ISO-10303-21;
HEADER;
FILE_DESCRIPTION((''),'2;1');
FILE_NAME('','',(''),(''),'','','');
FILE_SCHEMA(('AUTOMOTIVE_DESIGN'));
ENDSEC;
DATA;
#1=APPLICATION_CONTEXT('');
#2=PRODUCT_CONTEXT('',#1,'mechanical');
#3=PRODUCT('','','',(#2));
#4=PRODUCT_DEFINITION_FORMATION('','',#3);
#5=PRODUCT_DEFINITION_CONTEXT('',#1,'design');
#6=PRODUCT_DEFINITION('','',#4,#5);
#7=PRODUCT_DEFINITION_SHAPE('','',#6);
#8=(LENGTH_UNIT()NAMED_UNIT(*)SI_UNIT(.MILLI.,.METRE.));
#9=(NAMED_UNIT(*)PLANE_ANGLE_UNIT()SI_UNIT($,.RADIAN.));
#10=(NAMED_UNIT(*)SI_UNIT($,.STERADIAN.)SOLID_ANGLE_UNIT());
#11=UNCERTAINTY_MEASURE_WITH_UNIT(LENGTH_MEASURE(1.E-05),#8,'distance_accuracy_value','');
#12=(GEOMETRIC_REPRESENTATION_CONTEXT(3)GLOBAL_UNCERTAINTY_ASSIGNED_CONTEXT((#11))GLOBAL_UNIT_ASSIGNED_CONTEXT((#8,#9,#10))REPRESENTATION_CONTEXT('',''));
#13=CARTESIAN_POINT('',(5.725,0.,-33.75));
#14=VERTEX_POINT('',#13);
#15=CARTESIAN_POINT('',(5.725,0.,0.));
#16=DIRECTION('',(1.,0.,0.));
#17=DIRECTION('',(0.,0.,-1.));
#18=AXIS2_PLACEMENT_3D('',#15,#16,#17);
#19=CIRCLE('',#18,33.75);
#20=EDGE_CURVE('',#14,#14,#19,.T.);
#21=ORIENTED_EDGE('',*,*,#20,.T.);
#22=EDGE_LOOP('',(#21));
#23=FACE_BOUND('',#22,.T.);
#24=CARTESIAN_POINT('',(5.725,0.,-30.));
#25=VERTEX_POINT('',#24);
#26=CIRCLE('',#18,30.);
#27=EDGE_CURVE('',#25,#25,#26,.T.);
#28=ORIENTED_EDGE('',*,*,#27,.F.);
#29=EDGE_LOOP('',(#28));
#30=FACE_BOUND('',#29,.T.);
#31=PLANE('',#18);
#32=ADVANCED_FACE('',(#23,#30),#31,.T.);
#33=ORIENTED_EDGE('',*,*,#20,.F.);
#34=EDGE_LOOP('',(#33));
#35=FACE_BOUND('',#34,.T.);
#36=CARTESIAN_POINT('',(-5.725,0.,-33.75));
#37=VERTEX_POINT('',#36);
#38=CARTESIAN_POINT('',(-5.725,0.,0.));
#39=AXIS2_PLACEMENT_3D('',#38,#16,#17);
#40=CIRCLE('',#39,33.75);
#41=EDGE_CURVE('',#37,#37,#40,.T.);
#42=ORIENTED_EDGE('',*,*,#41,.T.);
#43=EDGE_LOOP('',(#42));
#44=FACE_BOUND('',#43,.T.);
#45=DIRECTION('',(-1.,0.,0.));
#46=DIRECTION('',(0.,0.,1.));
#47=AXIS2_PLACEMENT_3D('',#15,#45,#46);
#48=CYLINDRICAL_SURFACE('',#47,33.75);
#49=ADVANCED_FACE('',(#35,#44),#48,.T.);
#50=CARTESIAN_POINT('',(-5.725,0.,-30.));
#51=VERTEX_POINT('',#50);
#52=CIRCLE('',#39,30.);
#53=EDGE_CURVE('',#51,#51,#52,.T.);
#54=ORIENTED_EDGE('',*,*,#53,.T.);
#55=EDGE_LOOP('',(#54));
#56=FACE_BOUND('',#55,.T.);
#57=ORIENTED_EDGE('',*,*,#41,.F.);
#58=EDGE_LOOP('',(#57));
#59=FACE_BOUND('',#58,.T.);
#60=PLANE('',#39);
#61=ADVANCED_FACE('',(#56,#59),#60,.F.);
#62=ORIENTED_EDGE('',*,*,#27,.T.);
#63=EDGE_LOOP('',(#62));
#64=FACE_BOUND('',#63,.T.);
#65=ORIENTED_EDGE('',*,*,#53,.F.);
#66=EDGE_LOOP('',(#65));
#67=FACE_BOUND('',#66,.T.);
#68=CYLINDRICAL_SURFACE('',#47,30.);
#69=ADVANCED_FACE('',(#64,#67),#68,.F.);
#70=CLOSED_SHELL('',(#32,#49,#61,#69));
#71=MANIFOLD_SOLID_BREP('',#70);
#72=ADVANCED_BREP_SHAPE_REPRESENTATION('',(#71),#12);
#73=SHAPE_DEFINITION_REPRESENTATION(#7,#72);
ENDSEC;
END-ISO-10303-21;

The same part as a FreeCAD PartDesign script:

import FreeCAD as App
import Part
import Sketcher

V = App.Vector

doc = App.newDocument("Part")
body = doc.addObject("PartDesign::Body", "Body")

# Sketch on YZ plane
sketch1 = body.newObject("Sketcher::SketchObject", "Sketch")
sketch1.AttachmentSupport = (doc.getObject("YZ_Plane"), [""])
sketch1.MapMode = "FlatFace"
sketch1.addGeometry([
    Part.Circle(V(0, 0, 0), V(0, 0, 1), 34),
    Part.Circle(V(0, 0, 0), V(0, 0, 1), 30),
], False)
sketch1.addConstraint([
    Sketcher.Constraint("Coincident", 0, 3, -1, 1),
    Sketcher.Constraint("Coincident", 1, 3, -1, 1),
    Sketcher.Constraint("Diameter", 1, 60.0),
    Sketcher.Constraint("Diameter", 0, 67.5),
])
pad1 = body.newObject("PartDesign::Pad", "Pad")
pad1.Profile = sketch1
pad1.Length = 11.45
pad1.Midplane = True

doc.recompute()
